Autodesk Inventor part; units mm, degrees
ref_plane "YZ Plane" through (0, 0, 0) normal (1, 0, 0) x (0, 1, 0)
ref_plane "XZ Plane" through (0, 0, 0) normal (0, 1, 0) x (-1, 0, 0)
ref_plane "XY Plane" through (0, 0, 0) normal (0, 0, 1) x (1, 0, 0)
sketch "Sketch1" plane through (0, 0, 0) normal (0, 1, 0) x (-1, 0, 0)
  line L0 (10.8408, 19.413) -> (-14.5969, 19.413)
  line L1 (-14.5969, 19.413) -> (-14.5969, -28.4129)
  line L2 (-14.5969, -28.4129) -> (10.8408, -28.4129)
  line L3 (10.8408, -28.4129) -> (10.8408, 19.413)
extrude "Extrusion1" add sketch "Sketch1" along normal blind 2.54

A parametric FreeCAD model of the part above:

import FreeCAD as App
import Part
import Sketcher
from FreeCAD import Vector
Q = App.Units.Quantity


def add_polygon(sketch, points):
    """Adds a closed chain of lines whose ends are joined by coincident constraints."""
    first, n = sketch.GeometryCount, len(points)
    for a, b in zip(points, points[1:] + points[:1]):
        sketch.addGeometry(Part.LineSegment(App.Vector(*a, 0), App.Vector(*b, 0)), False)
    for i in range(n):
        sketch.addConstraint(Sketcher.Constraint("Coincident", first + i, 2, first + (i + 1) % n, 1))

doc = App.newDocument("Part")
body = doc.addObject("PartDesign::Body", "Body")

# Sketch on XZ plane
sketch1 = body.newObject("Sketcher::SketchObject", "Sketch")
sketch1.AttachmentSupport = (doc.getObject("XZ_Plane"), [""])
sketch1.MapMode = "FlatFace"
add_polygon(sketch1, [(-11, -28), (-11, 19), (15, 19), (15, -28)])  # lines 0-3
sketch1.addConstraint([
    Sketcher.Constraint("Vertical", 0),
    Sketcher.Constraint("Horizontal", 1),
    Sketcher.Constraint("Vertical", 2),
    Sketcher.Constraint("Horizontal", 3),
    Sketcher.Constraint("DistanceY", 0, 1, 0, 2, Q("1.8829 in")),
    Sketcher.Constraint("DistanceX", 1, 1, 1, 2, Q("25.4377 mm")),
    Sketcher.Constraint("DistanceX", 0, 2, -1, 1, Q("0.4268 in")),
    Sketcher.Constraint("DistanceY", -1, 1, 0, 2, Q("0.7643 in")),
])
pad1 = body.newObject("PartDesign::Pad", "Pad")
pad1.Profile = sketch1
pad1.Length = Q("0.1 in")
pad1.Reversed = True

doc.recompute()
